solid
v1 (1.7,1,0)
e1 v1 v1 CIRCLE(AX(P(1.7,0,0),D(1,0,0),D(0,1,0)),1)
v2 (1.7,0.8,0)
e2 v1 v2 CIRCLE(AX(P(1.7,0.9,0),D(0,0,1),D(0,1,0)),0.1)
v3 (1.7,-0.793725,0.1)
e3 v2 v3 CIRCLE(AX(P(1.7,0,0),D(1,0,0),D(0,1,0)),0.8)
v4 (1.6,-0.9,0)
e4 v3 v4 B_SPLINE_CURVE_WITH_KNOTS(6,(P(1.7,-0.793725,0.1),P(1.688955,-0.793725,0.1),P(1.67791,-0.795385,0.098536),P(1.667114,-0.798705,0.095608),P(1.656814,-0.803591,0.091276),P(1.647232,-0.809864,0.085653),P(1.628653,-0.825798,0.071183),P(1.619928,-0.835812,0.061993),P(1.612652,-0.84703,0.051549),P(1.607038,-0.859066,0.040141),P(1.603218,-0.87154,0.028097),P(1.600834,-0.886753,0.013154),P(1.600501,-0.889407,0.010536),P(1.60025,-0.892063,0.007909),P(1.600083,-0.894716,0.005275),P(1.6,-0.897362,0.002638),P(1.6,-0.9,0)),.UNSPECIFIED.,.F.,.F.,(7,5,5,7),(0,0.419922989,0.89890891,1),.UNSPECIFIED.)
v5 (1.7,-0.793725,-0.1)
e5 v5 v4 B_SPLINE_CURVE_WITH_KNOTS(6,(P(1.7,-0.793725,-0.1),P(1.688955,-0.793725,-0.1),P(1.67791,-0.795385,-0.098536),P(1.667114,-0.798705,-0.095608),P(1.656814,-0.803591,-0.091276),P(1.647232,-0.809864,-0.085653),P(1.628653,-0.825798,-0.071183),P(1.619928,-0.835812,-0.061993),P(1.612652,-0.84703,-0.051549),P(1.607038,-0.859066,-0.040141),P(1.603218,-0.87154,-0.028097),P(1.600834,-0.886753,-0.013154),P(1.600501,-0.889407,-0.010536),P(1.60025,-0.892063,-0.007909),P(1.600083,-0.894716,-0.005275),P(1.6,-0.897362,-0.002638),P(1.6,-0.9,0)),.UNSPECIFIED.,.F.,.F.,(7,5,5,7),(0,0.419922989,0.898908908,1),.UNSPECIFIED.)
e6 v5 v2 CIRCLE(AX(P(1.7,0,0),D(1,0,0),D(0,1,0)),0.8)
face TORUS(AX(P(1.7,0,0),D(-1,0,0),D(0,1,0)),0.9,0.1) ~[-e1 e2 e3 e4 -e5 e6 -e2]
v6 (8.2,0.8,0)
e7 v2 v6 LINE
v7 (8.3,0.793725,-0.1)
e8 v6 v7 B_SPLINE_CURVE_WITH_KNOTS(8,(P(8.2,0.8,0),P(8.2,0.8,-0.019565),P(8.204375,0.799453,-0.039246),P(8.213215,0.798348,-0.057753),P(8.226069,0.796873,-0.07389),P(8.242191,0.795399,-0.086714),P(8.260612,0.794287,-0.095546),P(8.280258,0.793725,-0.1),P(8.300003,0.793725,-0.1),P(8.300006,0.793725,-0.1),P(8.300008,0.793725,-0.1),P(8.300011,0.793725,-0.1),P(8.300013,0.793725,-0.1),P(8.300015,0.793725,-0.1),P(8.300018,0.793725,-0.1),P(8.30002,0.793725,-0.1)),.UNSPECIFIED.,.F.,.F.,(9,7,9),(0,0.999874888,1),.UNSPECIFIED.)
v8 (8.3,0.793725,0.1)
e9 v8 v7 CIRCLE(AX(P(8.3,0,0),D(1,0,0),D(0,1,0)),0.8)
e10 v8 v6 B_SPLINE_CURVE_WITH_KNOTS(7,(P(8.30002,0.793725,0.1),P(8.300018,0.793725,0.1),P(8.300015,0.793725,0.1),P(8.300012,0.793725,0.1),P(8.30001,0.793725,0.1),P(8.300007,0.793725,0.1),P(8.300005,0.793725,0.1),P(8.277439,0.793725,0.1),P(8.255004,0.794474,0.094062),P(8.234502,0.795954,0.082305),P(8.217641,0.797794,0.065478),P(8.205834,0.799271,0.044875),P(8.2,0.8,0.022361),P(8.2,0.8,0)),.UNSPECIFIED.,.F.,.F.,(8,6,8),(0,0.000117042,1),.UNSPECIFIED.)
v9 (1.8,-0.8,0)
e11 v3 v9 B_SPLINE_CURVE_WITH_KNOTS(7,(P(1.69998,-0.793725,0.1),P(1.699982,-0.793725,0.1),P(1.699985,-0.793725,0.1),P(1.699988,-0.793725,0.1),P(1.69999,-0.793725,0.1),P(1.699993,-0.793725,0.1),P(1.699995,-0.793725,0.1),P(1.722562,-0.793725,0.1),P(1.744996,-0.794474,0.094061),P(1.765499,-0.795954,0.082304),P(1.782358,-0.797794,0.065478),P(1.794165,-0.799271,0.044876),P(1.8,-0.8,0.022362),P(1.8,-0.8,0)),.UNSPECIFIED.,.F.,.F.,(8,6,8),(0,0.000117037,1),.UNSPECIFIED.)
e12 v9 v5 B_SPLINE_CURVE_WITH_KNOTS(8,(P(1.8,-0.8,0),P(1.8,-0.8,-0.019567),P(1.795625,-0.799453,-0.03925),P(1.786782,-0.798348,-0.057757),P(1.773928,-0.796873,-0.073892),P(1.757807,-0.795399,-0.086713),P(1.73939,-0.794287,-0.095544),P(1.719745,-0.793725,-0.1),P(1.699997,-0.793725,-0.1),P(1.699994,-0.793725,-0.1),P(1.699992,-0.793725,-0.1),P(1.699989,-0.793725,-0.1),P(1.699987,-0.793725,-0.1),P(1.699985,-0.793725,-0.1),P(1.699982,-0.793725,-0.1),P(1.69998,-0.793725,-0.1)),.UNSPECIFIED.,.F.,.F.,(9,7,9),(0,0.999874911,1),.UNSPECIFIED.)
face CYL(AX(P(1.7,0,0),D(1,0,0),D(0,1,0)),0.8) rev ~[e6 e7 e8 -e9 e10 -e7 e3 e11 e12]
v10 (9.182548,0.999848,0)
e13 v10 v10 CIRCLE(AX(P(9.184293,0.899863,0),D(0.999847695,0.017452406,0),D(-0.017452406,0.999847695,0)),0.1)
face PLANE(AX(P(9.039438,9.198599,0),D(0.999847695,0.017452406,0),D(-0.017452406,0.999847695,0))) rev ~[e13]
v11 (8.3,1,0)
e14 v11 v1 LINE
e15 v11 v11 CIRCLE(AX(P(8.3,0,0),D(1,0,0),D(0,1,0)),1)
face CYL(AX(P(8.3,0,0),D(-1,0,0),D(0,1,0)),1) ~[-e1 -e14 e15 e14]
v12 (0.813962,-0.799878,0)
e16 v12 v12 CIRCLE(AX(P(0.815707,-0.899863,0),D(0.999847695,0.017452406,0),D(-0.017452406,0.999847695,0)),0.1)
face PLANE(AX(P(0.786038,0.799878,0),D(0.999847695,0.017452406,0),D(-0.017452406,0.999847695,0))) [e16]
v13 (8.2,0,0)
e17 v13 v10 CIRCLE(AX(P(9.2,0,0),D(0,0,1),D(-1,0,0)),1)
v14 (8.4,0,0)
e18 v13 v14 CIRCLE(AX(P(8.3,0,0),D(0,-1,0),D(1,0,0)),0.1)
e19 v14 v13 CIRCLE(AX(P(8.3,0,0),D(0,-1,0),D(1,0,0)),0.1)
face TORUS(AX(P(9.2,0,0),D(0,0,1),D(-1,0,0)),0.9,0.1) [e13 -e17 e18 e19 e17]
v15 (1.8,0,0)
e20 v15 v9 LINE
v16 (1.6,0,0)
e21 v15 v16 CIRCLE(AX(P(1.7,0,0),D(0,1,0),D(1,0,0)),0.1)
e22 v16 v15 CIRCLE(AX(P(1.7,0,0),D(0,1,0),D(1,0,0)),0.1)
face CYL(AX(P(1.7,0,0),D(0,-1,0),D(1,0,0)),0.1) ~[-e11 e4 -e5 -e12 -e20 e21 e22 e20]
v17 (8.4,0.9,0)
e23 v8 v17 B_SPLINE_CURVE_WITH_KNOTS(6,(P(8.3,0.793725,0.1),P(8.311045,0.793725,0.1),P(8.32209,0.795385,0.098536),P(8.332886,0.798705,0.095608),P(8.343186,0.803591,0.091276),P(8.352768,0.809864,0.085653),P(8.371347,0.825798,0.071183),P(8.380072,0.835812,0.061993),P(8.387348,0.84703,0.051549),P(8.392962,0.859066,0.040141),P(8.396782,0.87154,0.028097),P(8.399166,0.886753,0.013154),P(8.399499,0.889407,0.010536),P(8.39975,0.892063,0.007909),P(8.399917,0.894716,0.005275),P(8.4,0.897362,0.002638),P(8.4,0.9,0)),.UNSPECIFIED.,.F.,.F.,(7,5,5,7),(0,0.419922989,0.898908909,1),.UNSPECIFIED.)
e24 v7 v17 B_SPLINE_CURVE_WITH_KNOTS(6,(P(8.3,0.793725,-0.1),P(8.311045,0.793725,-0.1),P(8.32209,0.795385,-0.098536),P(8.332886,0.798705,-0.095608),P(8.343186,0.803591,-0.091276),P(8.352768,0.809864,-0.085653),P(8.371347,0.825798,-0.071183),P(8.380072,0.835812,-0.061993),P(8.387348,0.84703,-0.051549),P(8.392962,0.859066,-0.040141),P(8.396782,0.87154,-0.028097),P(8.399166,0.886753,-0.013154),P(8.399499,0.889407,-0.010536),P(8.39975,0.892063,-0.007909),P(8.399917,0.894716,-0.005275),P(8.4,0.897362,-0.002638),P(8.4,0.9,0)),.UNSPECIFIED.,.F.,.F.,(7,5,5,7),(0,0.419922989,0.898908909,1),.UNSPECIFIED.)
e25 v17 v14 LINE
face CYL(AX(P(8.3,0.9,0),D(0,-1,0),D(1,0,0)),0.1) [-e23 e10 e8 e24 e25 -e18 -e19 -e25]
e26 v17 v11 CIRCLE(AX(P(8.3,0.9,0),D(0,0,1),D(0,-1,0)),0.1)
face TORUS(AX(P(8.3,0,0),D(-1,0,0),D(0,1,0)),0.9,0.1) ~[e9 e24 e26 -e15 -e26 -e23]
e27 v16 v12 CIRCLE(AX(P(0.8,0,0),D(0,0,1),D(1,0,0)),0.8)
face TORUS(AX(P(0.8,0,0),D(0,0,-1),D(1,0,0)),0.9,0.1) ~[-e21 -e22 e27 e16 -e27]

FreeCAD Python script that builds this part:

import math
import FreeCAD as App
import Part
import Sketcher
Q = App.Units.Quantity

doc = App.newDocument("Part")
params = doc.addObject("Spreadsheet::Sheet", "Params")
for row, (alias, value) in enumerate([
    ("sketch1_radius", "0.1 mm"),
    ("sketch1_width", "6.6 mm"),
    ("revolution_angle", "360 deg"),
    ("sketch2_width", "0.1 mm"),
    ("sketch2_height", "0.9 mm"),
    ("revolution2_angle", "360 deg"),
    ("sketch3_diameter", "0.2 mm"),
    ("sketch3_height", "10 mm"),
    ("revolution3_angle", "271 deg"),
    ("sketch4_width", "0.1 mm"),
    ("sketch4_height", "0.9 mm"),
    ("revolution4_angle", "360 deg"),
    ("sketch5_diameter", "0.2 mm"),
    ("sketch5_height", "10 mm"),
    ("revolution5_angle", "271 deg"),
], start=1):
    params.set(f"A{row}", alias)
    params.set(f"B{row}", "=" + value)
    params.setAlias(f"B{row}", alias)

body = doc.addObject("PartDesign::Body", "Body")

# Sketch on XY plane
sketch1 = body.newObject("Sketcher::SketchObject", "Sketch")
sketch1.AttachmentSupport = (doc.getObject("XY_Plane"), [""])
sketch1.MapMode = "FlatFace"
sketch1.addGeometry(Part.LineSegment(App.Vector(8.3, 1, 0), App.Vector(1.7, 1, 0)), False)
sketch1.addGeometry(Part.ArcOfCircle(Part.Circle(App.Vector(1.7, 0.9, 0), App.Vector(0, 0, 1), 0.1), math.radians(90), math.radians(270)), False)
sketch1.addGeometry(Part.LineSegment(App.Vector(1.7, 0.8, 0), App.Vector(8.3, 0.8, 0)), False)
sketch1.addGeometry(Part.ArcOfCircle(Part.Circle(App.Vector(8.3, 0.9, 0), App.Vector(0, 0, 1), 0.1), math.radians(-90), math.radians(90)), False)
sketch1.addConstraint(Sketcher.Constraint("Tangent", 0, 2, 1, 1))
sketch1.addConstraint(Sketcher.Constraint("Tangent", 1, 2, 2, 1))
sketch1.addConstraint(Sketcher.Constraint("Tangent", 2, 2, 3, 1))
sketch1.addConstraint(Sketcher.Constraint("Tangent", 3, 2, 0, 1))
sketch1.addConstraint(Sketcher.Constraint("Horizontal", 0))
sketch1.addConstraint(Sketcher.Constraint("Horizontal", 2))
sketch1.addConstraint(Sketcher.Constraint("Radius", 1, Q("0.1 mm")))
sketch1.addConstraint(Sketcher.Constraint("DistanceX", 0, 2, 0, 1, Q("6.6 mm")))
sketch1.addConstraint(Sketcher.Constraint("DistanceY", -1, 1, 0, 2, Q("1 mm")))
sketch1.addConstraint(Sketcher.Constraint("DistanceX", -1, 1, 1, 3, Q("1.7 mm")))
sketch1.setExpression("Constraints[6]", "Params.sketch1_radius")
sketch1.setExpression("Constraints[7]", "Params.sketch1_width")
revolution = body.newObject("PartDesign::Revolution", "Revolution")
revolution.Profile = sketch1
revolution.ReferenceAxis = (sketch1, ["H_Axis"])
revolution.setExpression("Angle", "Params.revolution_angle")

# Sketch on XY plane
sketch2 = body.newObject("Sketcher::SketchObject", "Sketch001")
sketch2.AttachmentSupport = (doc.getObject("XY_Plane"), [""])
sketch2.MapMode = "FlatFace"
sketch2.addGeometry(Part.LineSegment(App.Vector(8.3, 0.9, 0), App.Vector(8.3, 0, 0)), False)
sketch2.addGeometry(Part.LineSegment(App.Vector(8.3, 0, 0), App.Vector(8.4, 0, 0)), False)
sketch2.addGeometry(Part.LineSegment(App.Vector(8.4, 0, 0), App.Vector(8.4, 0.9, 0)), False)
sketch2.addGeometry(Part.LineSegment(App.Vector(8.4, 0.9, 0), App.Vector(8.3, 0.9, 0)), False)
sketch2.addGeometry(Part.LineSegment(App.Vector(8.3, 0.9, 0), App.Vector(8.3, 0, 0)), True)  # axis
sketch2.addConstraint(Sketcher.Constraint("Coincident", 0, 2, 1, 1))
sketch2.addConstraint(Sketcher.Constraint("Coincident", 1, 2, 2, 1))
sketch2.addConstraint(Sketcher.Constraint("Coincident", 2, 2, 3, 1))
sketch2.addConstraint(Sketcher.Constraint("Coincident", 3, 2, 0, 1))
sketch2.addConstraint(Sketcher.Constraint("Vertical", 0))
sketch2.addConstraint(Sketcher.Constraint("Horizontal", 1))
sketch2.addConstraint(Sketcher.Constraint("Vertical", 2))
sketch2.addConstraint(Sketcher.Constraint("Horizontal", 3))
sketch2.addConstraint(Sketcher.Constraint("Vertical", 4))
sketch2.addConstraint(Sketcher.Constraint("Coincident", 4, 1, 3, 2))
sketch2.addConstraint(Sketcher.Constraint("PointOnObject", 0, 2, -1))
sketch2.addConstraint(Sketcher.Constraint("PointOnObject", 4, 2, -1))
sketch2.addConstraint(Sketcher.Constraint("DistanceX", 1, 1, 1, 2, Q("0.1 mm")))
sketch2.addConstraint(Sketcher.Constraint("DistanceY", 0, 2, 0, 1, Q("0.9 mm")))
sketch2.addConstraint(Sketcher.Constraint("DistanceX", -1, 1, 0, 2, Q("8.3 mm")))
sketch2.setExpression("Constraints[12]", "Params.sketch2_width")
sketch2.setExpression("Constraints[13]", "Params.sketch2_height")
revolution2 = body.newObject("PartDesign::Revolution", "Revolution001")
revolution2.Profile = sketch2
revolution2.ReferenceAxis = (sketch2, ["Axis0"])
revolution2.setExpression("Angle", "Params.revolution2_angle")

# Sketch on XZ plane
sketch3 = body.newObject("Sketcher::SketchObject", "Sketch002")
sketch3.AttachmentSupport = (doc.getObject("XZ_Plane"), [""])
sketch3.MapMode = "FlatFace"
sketch3.addGeometry(Part.Circle(App.Vector(8.3, 0, 0), App.Vector(0, 0, 1), 0.1), False)
sketch3.addGeometry(Part.LineSegment(App.Vector(9.2, 0, 0), App.Vector(9.2, 10, 0)), True)  # axis
sketch3.addConstraint(Sketcher.Constraint("Vertical", 1))
sketch3.addConstraint(Sketcher.Constraint("PointOnObject", 0, 3, -1))
sketch3.addConstraint(Sketcher.Constraint("PointOnObject", 1, 1, -1))
sketch3.addConstraint(Sketcher.Constraint("Diameter", 0, Q("0.2 mm")))
sketch3.addConstraint(Sketcher.Constraint("DistanceY", 1, 1, 1, 2, Q("10 mm")))
sketch3.addConstraint(Sketcher.Constraint("DistanceX", -1, 1, 0, 3, Q("8.3 mm")))
sketch3.addConstraint(Sketcher.Constraint("DistanceX", -1, 1, 1, 1, Q("9.2 mm")))
sketch3.setExpression("Constraints[3]", "Params.sketch3_diameter")
sketch3.setExpression("Constraints[4]", "Params.sketch3_height")
revolution3 = body.newObject("PartDesign::Revolution", "Revolution002")
revolution3.Profile = sketch3
revolution3.ReferenceAxis = (sketch3, ["Axis0"])
revolution3.setExpression("Angle", "Params.revolution3_angle")

# Sketch on XY plane
sketch4 = body.newObject("Sketcher::SketchObject", "Sketch003")
sketch4.AttachmentSupport = (doc.getObject("XY_Plane"), [""])
sketch4.MapMode = "FlatFace"
sketch4.addGeometry(Part.LineSegment(App.Vector(1.7, 0, 0), App.Vector(1.7, -0.9, 0)), False)
sketch4.addGeometry(Part.LineSegment(App.Vector(1.7, -0.9, 0), App.Vector(1.8, -0.9, 0)), False)
sketch4.addGeometry(Part.LineSegment(App.Vector(1.8, -0.9, 0), App.Vector(1.8, 0, 0)), False)
sketch4.addGeometry(Part.LineSegment(App.Vector(1.8, 0, 0), App.Vector(1.7, 0, 0)), False)
sketch4.addGeometry(Part.LineSegment(App.Vector(1.7, -0.9, 0), App.Vector(1.7, 0, 0)), True)  # axis
sketch4.addConstraint(Sketcher.Constraint("Coincident", 0, 2, 1, 1))
sketch4.addConstraint(Sketcher.Constraint("Coincident", 1, 2, 2, 1))
sketch4.addConstraint(Sketcher.Constraint("Coincident", 2, 2, 3, 1))
sketch4.addConstraint(Sketcher.Constraint("Coincident", 3, 2, 0, 1))
sketch4.addConstraint(Sketcher.Constraint("Vertical", 0))
sketch4.addConstraint(Sketcher.Constraint("Horizontal", 1))
sketch4.addConstraint(Sketcher.Constraint("Vertical", 2))
sketch4.addConstraint(Sketcher.Constraint("Horizontal", 3))
sketch4.addConstraint(Sketcher.Constraint("Vertical", 4))
sketch4.addConstraint(Sketcher.Constraint("Coincident", 4, 1, 0, 2))
sketch4.addConstraint(Sketcher.Constraint("PointOnObject", 2, 2, -1))
sketch4.addConstraint(Sketcher.Constraint("PointOnObject", 4, 2, -1))
sketch4.addConstraint(Sketcher.Constraint("DistanceX", 1, 1, 1, 2, Q("0.1 mm")))
sketch4.addConstraint(Sketcher.Constraint("DistanceY", 0, 2, 0, 1, Q("0.9 mm")))
sketch4.addConstraint(Sketcher.Constraint("DistanceX", -1, 1, 0, 2, Q("1.7 mm")))
sketch4.setExpression("Constraints[12]", "Params.sketch4_width")
sketch4.setExpression("Constraints[13]", "Params.sketch4_height")
revolution4 = body.newObject("PartDesign::Revolution", "Revolution003")
revolution4.Profile = sketch4
revolution4.ReferenceAxis = (sketch4, ["Axis0"])
revolution4.setExpression("Angle", "Params.revolution4_angle")

# Sketch on XZ plane
sketch5 = body.newObject("Sketcher::SketchObject", "Sketch004")
sketch5.AttachmentSupport = (doc.getObject("XZ_Plane"), [""])
sketch5.MapMode = "FlatFace"
sketch5.addGeometry(Part.Circle(App.Vector(1.7, 0, 0), App.Vector(0, 0, 1), 0.1), False)
sketch5.addGeometry(Part.LineSegment(App.Vector(0.8, 0, 0), App.Vector(0.8, 10, 0)), True)  # axis
sketch5.addConstraint(Sketcher.Constraint("Vertical", 1))
sketch5.addConstraint(Sketcher.Constraint("PointOnObject", 0, 3, -1))
sketch5.addConstraint(Sketcher.Constraint("PointOnObject", 1, 1, -1))
sketch5.addConstraint(Sketcher.Constraint("Diameter", 0, Q("0.2 mm")))
sketch5.addConstraint(Sketcher.Constraint("DistanceY", 1, 1, 1, 2, Q("10 mm")))
sketch5.addConstraint(Sketcher.Constraint("DistanceX", -1, 1, 0, 3, Q("1.7 mm")))
sketch5.addConstraint(Sketcher.Constraint("DistanceX", -1, 1, 1, 1, Q("0.8 mm")))
sketch5.setExpression("Constraints[3]", "Params.sketch5_diameter")
sketch5.setExpression("Constraints[4]", "Params.sketch5_height")
revolution5 = body.newObject("PartDesign::Revolution", "Revolution004")
revolution5.Profile = sketch5
revolution5.ReferenceAxis = (sketch5, ["Axis0"])
revolution5.setExpression("Angle", "Params.revolution5_angle")

doc.recompute()
